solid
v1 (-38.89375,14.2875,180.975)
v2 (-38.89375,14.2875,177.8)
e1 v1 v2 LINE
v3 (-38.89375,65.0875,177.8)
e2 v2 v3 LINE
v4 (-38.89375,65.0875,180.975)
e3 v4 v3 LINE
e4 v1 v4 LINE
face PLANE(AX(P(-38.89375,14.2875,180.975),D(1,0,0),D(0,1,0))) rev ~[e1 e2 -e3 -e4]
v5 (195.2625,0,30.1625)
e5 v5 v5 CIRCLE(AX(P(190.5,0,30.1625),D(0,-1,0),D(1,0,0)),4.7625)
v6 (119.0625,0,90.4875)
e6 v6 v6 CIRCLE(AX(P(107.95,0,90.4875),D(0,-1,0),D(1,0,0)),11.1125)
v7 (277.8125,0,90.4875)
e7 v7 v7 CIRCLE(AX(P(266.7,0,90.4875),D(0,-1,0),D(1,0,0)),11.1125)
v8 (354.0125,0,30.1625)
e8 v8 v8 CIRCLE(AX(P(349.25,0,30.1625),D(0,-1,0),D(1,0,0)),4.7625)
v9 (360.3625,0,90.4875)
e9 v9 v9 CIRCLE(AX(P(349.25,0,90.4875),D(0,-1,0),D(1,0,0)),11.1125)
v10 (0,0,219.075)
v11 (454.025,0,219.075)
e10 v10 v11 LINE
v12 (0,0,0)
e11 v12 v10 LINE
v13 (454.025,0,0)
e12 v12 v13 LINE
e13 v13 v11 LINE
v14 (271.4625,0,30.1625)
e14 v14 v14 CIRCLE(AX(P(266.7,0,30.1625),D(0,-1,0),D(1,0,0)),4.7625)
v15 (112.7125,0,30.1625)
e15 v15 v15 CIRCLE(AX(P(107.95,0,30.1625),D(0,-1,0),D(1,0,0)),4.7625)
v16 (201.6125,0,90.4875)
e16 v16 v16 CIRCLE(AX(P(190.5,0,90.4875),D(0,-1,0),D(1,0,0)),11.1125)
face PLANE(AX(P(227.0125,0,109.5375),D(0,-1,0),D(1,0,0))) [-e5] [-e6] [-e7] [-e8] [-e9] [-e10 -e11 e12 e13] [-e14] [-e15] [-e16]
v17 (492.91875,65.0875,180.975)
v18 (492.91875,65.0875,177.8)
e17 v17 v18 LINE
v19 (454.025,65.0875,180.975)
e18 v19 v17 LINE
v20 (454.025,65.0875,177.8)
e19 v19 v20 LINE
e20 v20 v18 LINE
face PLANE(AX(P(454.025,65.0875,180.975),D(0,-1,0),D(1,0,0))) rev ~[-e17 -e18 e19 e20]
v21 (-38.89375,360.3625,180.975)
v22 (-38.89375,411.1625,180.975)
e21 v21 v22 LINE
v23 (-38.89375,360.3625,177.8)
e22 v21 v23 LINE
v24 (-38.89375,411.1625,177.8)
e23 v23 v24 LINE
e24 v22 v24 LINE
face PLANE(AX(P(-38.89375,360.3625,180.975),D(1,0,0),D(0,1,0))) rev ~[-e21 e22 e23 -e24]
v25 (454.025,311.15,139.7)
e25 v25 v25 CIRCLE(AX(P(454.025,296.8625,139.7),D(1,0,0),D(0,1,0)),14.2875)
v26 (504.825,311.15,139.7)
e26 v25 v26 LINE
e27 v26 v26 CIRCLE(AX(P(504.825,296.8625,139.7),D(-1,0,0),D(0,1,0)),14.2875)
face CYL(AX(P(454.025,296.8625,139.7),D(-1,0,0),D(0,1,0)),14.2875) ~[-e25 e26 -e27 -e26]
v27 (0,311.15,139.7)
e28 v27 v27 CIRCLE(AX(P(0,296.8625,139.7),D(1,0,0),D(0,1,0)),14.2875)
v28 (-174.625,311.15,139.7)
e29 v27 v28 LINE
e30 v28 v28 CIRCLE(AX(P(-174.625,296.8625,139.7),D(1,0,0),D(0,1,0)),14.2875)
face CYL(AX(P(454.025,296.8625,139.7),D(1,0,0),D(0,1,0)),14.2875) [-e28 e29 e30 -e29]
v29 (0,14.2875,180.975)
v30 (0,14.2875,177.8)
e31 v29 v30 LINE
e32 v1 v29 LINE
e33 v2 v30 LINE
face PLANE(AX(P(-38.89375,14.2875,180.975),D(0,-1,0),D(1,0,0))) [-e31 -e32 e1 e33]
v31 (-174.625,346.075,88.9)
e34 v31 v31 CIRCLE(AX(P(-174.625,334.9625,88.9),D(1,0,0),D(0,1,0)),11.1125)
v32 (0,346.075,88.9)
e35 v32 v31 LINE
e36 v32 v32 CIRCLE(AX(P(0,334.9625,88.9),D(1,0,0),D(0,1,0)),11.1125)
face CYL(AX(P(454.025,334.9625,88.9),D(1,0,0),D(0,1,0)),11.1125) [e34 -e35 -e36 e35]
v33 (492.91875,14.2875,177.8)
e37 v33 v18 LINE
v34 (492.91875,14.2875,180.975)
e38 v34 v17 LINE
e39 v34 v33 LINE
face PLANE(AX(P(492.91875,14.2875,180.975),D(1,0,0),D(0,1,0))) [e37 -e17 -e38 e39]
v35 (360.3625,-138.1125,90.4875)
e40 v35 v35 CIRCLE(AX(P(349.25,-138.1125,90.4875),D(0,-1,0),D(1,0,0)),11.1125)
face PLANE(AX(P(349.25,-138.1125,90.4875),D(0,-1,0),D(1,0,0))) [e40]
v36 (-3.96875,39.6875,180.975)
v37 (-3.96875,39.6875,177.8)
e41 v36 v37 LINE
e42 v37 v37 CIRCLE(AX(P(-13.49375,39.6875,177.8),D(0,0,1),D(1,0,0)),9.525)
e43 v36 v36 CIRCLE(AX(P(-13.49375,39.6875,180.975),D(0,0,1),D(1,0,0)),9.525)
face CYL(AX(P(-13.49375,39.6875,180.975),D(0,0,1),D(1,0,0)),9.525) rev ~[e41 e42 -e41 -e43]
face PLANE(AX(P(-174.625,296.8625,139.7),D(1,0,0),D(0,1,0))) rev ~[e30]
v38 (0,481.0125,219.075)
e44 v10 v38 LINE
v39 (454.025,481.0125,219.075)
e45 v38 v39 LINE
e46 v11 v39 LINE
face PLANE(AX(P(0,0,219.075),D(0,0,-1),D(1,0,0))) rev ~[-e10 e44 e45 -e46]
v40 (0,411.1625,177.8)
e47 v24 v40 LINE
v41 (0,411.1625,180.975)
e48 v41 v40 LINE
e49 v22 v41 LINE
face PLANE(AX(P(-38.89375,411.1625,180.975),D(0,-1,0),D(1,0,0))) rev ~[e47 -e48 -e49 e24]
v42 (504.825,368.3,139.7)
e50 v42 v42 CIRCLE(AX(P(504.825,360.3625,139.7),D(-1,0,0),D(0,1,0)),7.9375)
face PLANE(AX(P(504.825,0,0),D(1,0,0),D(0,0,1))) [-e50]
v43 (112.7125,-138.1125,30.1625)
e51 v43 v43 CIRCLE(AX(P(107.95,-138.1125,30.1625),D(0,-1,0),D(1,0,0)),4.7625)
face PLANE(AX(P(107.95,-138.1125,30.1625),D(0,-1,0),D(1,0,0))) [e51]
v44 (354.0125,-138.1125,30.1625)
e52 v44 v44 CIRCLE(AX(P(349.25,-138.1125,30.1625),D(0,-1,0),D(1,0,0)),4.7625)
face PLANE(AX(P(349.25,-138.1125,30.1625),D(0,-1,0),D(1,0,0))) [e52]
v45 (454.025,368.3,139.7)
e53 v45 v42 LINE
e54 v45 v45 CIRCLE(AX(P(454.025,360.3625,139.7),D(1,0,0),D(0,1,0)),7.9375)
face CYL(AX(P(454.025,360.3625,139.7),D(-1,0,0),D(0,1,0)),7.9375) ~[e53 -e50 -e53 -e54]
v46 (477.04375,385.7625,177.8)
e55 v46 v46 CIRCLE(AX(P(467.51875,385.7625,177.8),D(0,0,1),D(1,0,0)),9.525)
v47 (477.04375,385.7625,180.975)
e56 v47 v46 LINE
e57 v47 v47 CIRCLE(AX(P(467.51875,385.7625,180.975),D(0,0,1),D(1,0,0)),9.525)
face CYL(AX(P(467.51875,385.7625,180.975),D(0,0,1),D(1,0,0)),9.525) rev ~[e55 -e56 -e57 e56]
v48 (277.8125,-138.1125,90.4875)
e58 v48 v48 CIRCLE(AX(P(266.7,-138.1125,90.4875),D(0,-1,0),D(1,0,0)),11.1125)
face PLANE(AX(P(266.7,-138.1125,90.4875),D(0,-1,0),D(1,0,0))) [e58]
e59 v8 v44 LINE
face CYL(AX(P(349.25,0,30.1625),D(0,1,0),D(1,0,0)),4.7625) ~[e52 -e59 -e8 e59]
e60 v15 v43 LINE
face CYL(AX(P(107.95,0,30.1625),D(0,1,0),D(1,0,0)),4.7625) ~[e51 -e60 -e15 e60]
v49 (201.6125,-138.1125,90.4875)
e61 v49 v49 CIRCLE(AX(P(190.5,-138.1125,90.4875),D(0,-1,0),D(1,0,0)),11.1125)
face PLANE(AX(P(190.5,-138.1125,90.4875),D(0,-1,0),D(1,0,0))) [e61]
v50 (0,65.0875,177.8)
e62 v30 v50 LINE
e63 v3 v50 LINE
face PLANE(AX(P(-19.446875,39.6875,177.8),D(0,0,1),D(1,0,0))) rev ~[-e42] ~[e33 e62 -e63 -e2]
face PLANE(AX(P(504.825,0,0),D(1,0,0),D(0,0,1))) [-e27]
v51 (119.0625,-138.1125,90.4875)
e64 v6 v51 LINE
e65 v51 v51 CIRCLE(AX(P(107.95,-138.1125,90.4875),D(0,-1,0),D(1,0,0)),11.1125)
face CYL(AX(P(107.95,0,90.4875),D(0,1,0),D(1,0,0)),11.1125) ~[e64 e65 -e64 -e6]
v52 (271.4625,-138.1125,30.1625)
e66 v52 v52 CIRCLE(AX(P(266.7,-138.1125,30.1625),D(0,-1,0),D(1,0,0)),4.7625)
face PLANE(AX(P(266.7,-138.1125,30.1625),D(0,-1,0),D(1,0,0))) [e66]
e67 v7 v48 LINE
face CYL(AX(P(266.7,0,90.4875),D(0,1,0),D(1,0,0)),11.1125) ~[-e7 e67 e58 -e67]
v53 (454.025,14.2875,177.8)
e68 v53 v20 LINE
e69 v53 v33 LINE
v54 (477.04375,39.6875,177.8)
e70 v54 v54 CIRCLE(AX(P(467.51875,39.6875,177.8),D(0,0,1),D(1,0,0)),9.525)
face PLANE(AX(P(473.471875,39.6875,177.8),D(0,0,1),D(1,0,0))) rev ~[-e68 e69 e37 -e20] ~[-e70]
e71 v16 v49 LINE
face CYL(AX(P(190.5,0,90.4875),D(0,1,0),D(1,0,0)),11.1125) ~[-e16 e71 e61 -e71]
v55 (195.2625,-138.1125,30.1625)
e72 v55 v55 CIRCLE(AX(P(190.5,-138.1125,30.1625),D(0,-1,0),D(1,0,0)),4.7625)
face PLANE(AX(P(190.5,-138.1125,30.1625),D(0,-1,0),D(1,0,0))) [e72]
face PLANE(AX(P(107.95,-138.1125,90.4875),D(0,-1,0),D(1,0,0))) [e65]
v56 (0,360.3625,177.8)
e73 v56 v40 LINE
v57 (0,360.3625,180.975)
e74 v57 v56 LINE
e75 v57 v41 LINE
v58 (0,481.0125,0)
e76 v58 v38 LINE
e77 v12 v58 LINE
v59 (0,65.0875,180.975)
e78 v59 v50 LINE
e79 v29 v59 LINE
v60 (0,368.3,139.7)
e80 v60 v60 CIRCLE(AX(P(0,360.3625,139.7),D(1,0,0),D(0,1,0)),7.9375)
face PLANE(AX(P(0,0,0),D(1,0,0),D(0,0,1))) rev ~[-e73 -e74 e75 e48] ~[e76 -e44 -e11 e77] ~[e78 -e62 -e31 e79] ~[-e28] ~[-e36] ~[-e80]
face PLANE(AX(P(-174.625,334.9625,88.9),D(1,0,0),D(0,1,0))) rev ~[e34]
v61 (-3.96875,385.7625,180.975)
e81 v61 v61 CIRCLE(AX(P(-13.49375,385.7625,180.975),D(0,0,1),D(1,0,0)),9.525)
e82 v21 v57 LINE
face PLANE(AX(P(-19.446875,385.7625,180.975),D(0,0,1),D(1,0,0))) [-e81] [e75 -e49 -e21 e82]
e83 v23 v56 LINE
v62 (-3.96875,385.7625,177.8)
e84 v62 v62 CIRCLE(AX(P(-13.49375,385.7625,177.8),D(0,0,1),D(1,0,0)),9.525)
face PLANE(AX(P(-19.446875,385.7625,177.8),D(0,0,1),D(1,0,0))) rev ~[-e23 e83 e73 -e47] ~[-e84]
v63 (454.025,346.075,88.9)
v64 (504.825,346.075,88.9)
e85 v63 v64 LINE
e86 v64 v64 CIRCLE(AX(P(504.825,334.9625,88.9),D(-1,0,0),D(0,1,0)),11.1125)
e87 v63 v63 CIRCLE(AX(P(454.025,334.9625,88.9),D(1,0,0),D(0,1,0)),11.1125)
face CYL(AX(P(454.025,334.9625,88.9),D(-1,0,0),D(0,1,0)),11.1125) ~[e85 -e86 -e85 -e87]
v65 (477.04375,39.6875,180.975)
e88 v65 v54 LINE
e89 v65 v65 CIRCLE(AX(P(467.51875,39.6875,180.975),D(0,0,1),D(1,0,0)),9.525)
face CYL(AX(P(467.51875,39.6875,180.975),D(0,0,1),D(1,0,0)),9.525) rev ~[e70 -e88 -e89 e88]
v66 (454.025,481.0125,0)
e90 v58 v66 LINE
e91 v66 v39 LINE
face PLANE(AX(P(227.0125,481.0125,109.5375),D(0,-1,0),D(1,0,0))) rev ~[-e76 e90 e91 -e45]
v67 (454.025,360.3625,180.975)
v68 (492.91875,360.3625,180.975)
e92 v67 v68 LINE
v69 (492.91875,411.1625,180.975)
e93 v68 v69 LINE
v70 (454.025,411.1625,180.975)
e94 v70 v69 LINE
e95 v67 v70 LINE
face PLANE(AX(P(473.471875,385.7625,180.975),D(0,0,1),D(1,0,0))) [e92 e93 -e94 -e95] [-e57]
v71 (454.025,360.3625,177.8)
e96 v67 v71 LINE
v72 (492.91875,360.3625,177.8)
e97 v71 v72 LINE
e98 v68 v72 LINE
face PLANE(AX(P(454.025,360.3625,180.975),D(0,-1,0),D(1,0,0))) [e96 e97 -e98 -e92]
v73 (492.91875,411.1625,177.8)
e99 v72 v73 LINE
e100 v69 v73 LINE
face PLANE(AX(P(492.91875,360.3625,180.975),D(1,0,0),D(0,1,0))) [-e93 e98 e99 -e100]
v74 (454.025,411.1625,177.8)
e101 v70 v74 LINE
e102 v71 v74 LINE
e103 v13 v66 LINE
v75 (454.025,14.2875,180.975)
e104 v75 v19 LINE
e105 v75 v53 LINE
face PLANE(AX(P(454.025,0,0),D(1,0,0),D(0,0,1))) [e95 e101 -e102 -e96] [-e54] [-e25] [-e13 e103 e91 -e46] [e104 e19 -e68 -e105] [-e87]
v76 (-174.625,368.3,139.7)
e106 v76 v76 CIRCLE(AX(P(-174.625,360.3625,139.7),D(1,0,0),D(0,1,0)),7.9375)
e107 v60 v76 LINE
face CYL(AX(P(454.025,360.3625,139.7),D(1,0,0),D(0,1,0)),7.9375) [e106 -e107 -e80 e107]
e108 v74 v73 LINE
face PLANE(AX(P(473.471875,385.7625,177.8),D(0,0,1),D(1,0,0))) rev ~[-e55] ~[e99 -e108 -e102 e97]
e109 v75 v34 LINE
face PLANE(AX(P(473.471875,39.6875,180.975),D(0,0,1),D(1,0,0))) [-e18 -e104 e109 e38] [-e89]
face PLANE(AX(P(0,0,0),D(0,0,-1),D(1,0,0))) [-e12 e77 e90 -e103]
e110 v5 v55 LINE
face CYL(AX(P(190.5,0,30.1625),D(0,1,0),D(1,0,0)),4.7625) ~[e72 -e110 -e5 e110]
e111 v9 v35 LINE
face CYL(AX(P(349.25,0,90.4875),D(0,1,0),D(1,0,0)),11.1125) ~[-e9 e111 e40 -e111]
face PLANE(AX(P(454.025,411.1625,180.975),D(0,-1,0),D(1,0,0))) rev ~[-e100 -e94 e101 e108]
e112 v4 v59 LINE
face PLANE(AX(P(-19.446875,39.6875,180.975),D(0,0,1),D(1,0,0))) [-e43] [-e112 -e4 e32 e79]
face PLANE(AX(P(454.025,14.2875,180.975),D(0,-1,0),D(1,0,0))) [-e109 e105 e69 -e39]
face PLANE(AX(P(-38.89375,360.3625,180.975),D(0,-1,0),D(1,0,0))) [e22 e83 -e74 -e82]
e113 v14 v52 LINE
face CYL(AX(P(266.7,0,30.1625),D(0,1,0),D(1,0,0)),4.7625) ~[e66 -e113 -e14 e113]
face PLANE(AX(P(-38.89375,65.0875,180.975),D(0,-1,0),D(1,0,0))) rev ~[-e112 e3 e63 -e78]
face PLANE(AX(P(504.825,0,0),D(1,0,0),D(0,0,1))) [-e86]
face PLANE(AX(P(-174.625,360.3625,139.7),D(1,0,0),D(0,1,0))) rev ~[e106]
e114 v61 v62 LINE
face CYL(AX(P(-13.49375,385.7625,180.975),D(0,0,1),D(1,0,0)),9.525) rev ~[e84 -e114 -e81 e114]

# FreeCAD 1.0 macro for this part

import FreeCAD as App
import Part
import Sketcher
from FreeCAD import Vector
Q = App.Units.Quantity


def add_polygon(sketch, points):
    """Adds a closed chain of lines whose ends are joined by coincident constraints."""
    first, n = sketch.GeometryCount, len(points)
    for a, b in zip(points, points[1:] + points[:1]):
        sketch.addGeometry(Part.LineSegment(App.Vector(*a, 0), App.Vector(*b, 0)), False)
    for i in range(n):
        sketch.addConstraint(Sketcher.Constraint("Coincident", first + i, 2, first + (i + 1) % n, 1))

doc = App.newDocument("Part")
body = doc.addObject("PartDesign::Body", "Body")

sketch1 = body.newObject("Sketcher::SketchObject", "Sketch")
sketch1.AttachmentSupport = (doc.getObject("XZ_Plane"), [""])
sketch1.MapMode = "FlatFace"
add_polygon(sketch1, [(0, 219), (0, 0), (454, 0), (454, 219)])
sketch1.addConstraint([
    Sketcher.Constraint("Vertical", 0),
    Sketcher.Constraint("Horizontal", 1),
    Sketcher.Constraint("Vertical", 2),
    Sketcher.Constraint("Horizontal", 3),
    Sketcher.Constraint("Coincident", 0, 2, -1, 1),
    Sketcher.Constraint("DistanceX", 1, 1, 1, 2, Q("17.875 in")),
    Sketcher.Constraint("DistanceY", 0, 2, 0, 1, Q("8.625 in")),
])
pad1 = body.newObject("PartDesign::Pad", "Pad")
pad1.Profile = sketch1
pad1.Length = Q("18.9375 in")
pad1.Reversed = True

sketch2 = body.newObject("Sketcher::SketchObject", "Sketch001")
sketch2.AttachmentSupport = (doc.getObject("XZ_Plane"), [""])
sketch2.MapMode = "FlatFace"
sketch2.addGeometry([
    Part.Circle(Vector(108, 90.5, 0), Vector(0, 0, 1), 11.1),
    Part.Circle(Vector(108, 30.2, 0), Vector(0, 0, 1), 4.8),
    Part.Circle(Vector(349.2, 90.5, 0), Vector(0, 0, 1), 11.1),
    Part.Circle(Vector(349.2, 30.2, 0), Vector(0, 0, 1), 4.8),
    Part.Circle(Vector(190.5, 90.5, 0), Vector(0, 0, 1), 11.1),
    Part.Circle(Vector(266.7, 90.5, 0), Vector(0, 0, 1), 11.1),
    Part.Circle(Vector(190.5, 30.2, 0), Vector(0, 0, 1), 4.8),
    Part.Circle(Vector(266.7, 30.2, 0), Vector(0, 0, 1), 4.8),
], False)
sketch2.addConstraint([
    Sketcher.Constraint("Equal", 0, 2),
    Sketcher.Constraint("Equal", 1, 3),
    Sketcher.Constraint("Equal", 2, 4),
    Sketcher.Constraint("Equal", 4, 5),
    Sketcher.Constraint("Equal", 3, 6),
    Sketcher.Constraint("Equal", 6, 7),
    Sketcher.Constraint("Horizontal", 0, 3, 2, 3),
    Sketcher.Constraint("Horizontal", 1, 3, 3, 3),
    Sketcher.Constraint("Horizontal", 2, 3, 4, 3),
    Sketcher.Constraint("Horizontal", 4, 3, 5, 3),
    Sketcher.Constraint("Horizontal", 3, 3, 6, 3),
    Sketcher.Constraint("Horizontal", 6, 3, 7, 3),
    Sketcher.Constraint("Vertical", 0, 3, 1, 3),
    Sketcher.Constraint("Vertical", 2, 3, 3, 3),
    Sketcher.Constraint("Vertical", 4, 3, 6, 3),
    Sketcher.Constraint("Vertical", 5, 3, 7, 3),
    Sketcher.Constraint("Diameter", 0, Q("0.875 in")),
    Sketcher.Constraint("Diameter", 1, Q("0.375 in")),
    Sketcher.Constraint("DistanceX", 4, 3, 5, 3, Q("3 in")),
    Sketcher.Constraint("DistanceX", -1, 1, 4, 3, Q("7.5 in")),
    Sketcher.Constraint("DistanceX", 0, 3, 2, 3, Q("9.5 in")),
    Sketcher.Constraint("DistanceX", -1, 1, 0, 3, Q("4.25 in")),
    Sketcher.Constraint("DistanceY", -1, 1, 0, 3, Q("3.5625 in")),
    Sketcher.Constraint("DistanceY", -1, 1, 1, 3, Q("1.1875 in")),
])
pad2 = body.newObject("PartDesign::Pad", "Pad001")
pad2.Profile = sketch2
pad2.Length = Q("5.4375 in")

sketch3 = body.newObject("Sketcher::SketchObject", "Sketch002")
sketch3.AttachmentSupport = (doc.getObject("YZ_Plane"), [""])
sketch3.MapMode = "FlatFace"
sketch3.AttachmentOffset = App.Placement(Vector(0, 0, 17.875 * 25.4), App.Rotation())
sketch3.addGeometry([
    Part.Circle(Vector(297, 140, 0), Vector(0, 0, 1), 14),
    Part.Circle(Vector(360, 140, 0), Vector(0, 0, 1), 8),
    Part.Circle(Vector(335, 89, 0), Vector(0, 0, 1), 11),
], False)
sketch3.addConstraint([
    Sketcher.Constraint("Horizontal", 0, 3, 1, 3),
    Sketcher.Constraint("Diameter", 0, Q("1.125 in")),
    Sketcher.Constraint("Diameter", 1, Q("0.625 in")),
    Sketcher.Constraint("Diameter", 2, Q("0.875 in")),
    Sketcher.Constraint("DistanceX", 2, 3, 1, 3, Q("1 in")),
    Sketcher.Constraint("DistanceY", 2, 3, 1, 3, Q("2 in")),
    Sketcher.Constraint("DistanceY", -1, 1, 0, 3, Q("5.5 in")),
    Sketcher.Constraint("DistanceX", 0, 3, 1, 3, Q("2.5 in")),
    Sketcher.Constraint("DistanceX", -1, 1, 0, 3, Q("11.6875 in")),
])
pad3 = body.newObject("PartDesign::Pad", "Pad002")
pad3.Profile = sketch3
pad3.Type = "TwoLengths"
pad3.Length = Q("6.875 in")
pad3.Length2 = Q("24.75 in")

sketch4 = body.newObject("Sketcher::SketchObject", "Sketch003")
sketch4.AttachmentSupport = (doc.getObject("XY_Plane"), [""])
sketch4.MapMode = "FlatFace"
sketch4.AttachmentOffset = App.Placement(Vector(0, 0, 7.125 * 25.4), App.Rotation())
add_polygon(sketch4, [(-39, 411), (-39, 360), (0, 360), (0, 411)])
sketch4.addGeometry(Part.Circle(Vector(-13, 386, 0), Vector(0, 0, 1), 10), False)
add_polygon(sketch4, [(-39, 65), (-39, 14), (0, 14), (0, 65)])
sketch4.addGeometry(Part.Circle(Vector(-13, 40, 0), Vector(0, 0, 1), 10), False)
add_polygon(sketch4, [(454, 411), (454, 360), (493, 360), (493, 411)])
sketch4.addGeometry(Part.Circle(Vector(468, 386, 0), Vector(0, 0, 1), 10), False)
add_polygon(sketch4, [(454, 65), (454, 14), (493, 14), (493, 65)])
sketch4.addGeometry(Part.Circle(Vector(468, 40, 0), Vector(0, 0, 1), 10), False)
sketch4.addConstraint([
    Sketcher.Constraint("Vertical", 0),
    Sketcher.Constraint("Horizontal", 1),
    Sketcher.Constraint("Vertical", 2),
    Sketcher.Constraint("Horizontal", 3),
    Sketcher.Constraint("Vertical", 5),
    Sketcher.Constraint("Horizontal", 6),
    Sketcher.Constraint("Vertical", 7),
    Sketcher.Constraint("Horizontal", 8),
    Sketcher.Constraint("Vertical", 10),
    Sketcher.Constraint("Horizontal", 11),
    Sketcher.Constraint("Vertical", 12),
    Sketcher.Constraint("Horizontal", 13),
    Sketcher.Constraint("Vertical", 15),
    Sketcher.Constraint("Horizontal", 16),
    Sketcher.Constraint("Vertical", 17),
    Sketcher.Constraint("Horizontal", 18),
    Sketcher.Constraint("Equal", 4, 9),
    Sketcher.Constraint("Equal", 9, 14),
    Sketcher.Constraint("Equal", 14, 19),
    Sketcher.Constraint("PointOnObject", 1, 2, -2),
    Sketcher.Constraint("PointOnObject", 6, 2, -2),
    Sketcher.Constraint("Horizontal", 4, 3, 14, 3),
    Sketcher.Constraint("Horizontal", 9, 3, 19, 3),
    Sketcher.Constraint("Horizontal", 1, 2, 10, 2),
    Sketcher.Constraint("Horizontal", 3, 2, 12, 2),
    Sketcher.Constraint("Horizontal", 6, 2, 15, 2),
    Sketcher.Constraint("Horizontal", 8, 2, 17, 2),
    Sketcher.Constraint("Vertical", 4, 3, 9, 3),
    Sketcher.Constraint("Vertical", 14, 3, 19, 3),
    Sketcher.Constraint("Vertical", 3, 2, 5, 2),
    Sketcher.Constraint("Vertical", 13, 2, 15, 2),
    Sketcher.Constraint("Vertical", 12, 2, 16, 2),
    Sketcher.Constraint("Equal", 8, 11),
    Sketcher.Constraint("Equal", 2, 5),
    Sketcher.Constraint("Diameter", 4, Q("0.75 in")),
    Sketcher.Constraint("DistanceY", 0, 2, 0, 1, Q("2 in")),
    Sketcher.Constraint("DistanceX", 0, 2, 4, 3, Q("1 in")),
    Sketcher.Constraint("DistanceY", 0, 2, 4, 3, Q("1 in")),
    Sketcher.Constraint("DistanceY", 5, 2, 9, 3, Q("1 in")),
    Sketcher.Constraint("DistanceX", 14, 3, 11, 2, Q("1 in")),
    Sketcher.Constraint("DistanceX", 1, 1, 1, 2, Q("1.53125 in")),
    Sketcher.Constraint("DistanceY", -1, 1, 4, 3, Q("15.1875 in")),
    Sketcher.Constraint("DistanceY", -1, 1, 9, 3, Q("1.5625 in")),
    Sketcher.Constraint("DistanceX", -1, 1, 14, 3, Q("18.40625 in")),
])
pad4 = body.newObject("PartDesign::Pad", "Pad003")
pad4.Profile = sketch4
pad4.Length = Q("0.125 in")
pad4.Reversed = True

sketch5 = body.newObject("Sketcher::SketchObject", "Sketch004")
sketch5.AttachmentSupport = (doc.getObject("XZ_Plane"), [""])
sketch5.MapMode = "FlatFace"
add_polygon(sketch5, [(505, 219), (505, 0), (657, 0), (657, 219)])
sketch5.addConstraint([
    Sketcher.Constraint("Vertical", 0),
    Sketcher.Constraint("Horizontal", 1),
    Sketcher.Constraint("Vertical", 2),
    Sketcher.Constraint("Horizontal", 3),
    Sketcher.Constraint("PointOnObject", 0, 2, -1),
    Sketcher.Constraint("DistanceX", 1, 1, 1, 2, Q("6 in")),
    Sketcher.Constraint("DistanceY", 0, 2, 0, 1, Q("8.625 in")),
    Sketcher.Constraint("DistanceX", -1, 1, 0, 2, Q("19.875 in")),
])
pocket1 = body.newObject("PartDesign::Pocket", "Pocket")
pocket1.Profile = sketch5
pocket1.Type = "ThroughAll"

doc.recompute()
